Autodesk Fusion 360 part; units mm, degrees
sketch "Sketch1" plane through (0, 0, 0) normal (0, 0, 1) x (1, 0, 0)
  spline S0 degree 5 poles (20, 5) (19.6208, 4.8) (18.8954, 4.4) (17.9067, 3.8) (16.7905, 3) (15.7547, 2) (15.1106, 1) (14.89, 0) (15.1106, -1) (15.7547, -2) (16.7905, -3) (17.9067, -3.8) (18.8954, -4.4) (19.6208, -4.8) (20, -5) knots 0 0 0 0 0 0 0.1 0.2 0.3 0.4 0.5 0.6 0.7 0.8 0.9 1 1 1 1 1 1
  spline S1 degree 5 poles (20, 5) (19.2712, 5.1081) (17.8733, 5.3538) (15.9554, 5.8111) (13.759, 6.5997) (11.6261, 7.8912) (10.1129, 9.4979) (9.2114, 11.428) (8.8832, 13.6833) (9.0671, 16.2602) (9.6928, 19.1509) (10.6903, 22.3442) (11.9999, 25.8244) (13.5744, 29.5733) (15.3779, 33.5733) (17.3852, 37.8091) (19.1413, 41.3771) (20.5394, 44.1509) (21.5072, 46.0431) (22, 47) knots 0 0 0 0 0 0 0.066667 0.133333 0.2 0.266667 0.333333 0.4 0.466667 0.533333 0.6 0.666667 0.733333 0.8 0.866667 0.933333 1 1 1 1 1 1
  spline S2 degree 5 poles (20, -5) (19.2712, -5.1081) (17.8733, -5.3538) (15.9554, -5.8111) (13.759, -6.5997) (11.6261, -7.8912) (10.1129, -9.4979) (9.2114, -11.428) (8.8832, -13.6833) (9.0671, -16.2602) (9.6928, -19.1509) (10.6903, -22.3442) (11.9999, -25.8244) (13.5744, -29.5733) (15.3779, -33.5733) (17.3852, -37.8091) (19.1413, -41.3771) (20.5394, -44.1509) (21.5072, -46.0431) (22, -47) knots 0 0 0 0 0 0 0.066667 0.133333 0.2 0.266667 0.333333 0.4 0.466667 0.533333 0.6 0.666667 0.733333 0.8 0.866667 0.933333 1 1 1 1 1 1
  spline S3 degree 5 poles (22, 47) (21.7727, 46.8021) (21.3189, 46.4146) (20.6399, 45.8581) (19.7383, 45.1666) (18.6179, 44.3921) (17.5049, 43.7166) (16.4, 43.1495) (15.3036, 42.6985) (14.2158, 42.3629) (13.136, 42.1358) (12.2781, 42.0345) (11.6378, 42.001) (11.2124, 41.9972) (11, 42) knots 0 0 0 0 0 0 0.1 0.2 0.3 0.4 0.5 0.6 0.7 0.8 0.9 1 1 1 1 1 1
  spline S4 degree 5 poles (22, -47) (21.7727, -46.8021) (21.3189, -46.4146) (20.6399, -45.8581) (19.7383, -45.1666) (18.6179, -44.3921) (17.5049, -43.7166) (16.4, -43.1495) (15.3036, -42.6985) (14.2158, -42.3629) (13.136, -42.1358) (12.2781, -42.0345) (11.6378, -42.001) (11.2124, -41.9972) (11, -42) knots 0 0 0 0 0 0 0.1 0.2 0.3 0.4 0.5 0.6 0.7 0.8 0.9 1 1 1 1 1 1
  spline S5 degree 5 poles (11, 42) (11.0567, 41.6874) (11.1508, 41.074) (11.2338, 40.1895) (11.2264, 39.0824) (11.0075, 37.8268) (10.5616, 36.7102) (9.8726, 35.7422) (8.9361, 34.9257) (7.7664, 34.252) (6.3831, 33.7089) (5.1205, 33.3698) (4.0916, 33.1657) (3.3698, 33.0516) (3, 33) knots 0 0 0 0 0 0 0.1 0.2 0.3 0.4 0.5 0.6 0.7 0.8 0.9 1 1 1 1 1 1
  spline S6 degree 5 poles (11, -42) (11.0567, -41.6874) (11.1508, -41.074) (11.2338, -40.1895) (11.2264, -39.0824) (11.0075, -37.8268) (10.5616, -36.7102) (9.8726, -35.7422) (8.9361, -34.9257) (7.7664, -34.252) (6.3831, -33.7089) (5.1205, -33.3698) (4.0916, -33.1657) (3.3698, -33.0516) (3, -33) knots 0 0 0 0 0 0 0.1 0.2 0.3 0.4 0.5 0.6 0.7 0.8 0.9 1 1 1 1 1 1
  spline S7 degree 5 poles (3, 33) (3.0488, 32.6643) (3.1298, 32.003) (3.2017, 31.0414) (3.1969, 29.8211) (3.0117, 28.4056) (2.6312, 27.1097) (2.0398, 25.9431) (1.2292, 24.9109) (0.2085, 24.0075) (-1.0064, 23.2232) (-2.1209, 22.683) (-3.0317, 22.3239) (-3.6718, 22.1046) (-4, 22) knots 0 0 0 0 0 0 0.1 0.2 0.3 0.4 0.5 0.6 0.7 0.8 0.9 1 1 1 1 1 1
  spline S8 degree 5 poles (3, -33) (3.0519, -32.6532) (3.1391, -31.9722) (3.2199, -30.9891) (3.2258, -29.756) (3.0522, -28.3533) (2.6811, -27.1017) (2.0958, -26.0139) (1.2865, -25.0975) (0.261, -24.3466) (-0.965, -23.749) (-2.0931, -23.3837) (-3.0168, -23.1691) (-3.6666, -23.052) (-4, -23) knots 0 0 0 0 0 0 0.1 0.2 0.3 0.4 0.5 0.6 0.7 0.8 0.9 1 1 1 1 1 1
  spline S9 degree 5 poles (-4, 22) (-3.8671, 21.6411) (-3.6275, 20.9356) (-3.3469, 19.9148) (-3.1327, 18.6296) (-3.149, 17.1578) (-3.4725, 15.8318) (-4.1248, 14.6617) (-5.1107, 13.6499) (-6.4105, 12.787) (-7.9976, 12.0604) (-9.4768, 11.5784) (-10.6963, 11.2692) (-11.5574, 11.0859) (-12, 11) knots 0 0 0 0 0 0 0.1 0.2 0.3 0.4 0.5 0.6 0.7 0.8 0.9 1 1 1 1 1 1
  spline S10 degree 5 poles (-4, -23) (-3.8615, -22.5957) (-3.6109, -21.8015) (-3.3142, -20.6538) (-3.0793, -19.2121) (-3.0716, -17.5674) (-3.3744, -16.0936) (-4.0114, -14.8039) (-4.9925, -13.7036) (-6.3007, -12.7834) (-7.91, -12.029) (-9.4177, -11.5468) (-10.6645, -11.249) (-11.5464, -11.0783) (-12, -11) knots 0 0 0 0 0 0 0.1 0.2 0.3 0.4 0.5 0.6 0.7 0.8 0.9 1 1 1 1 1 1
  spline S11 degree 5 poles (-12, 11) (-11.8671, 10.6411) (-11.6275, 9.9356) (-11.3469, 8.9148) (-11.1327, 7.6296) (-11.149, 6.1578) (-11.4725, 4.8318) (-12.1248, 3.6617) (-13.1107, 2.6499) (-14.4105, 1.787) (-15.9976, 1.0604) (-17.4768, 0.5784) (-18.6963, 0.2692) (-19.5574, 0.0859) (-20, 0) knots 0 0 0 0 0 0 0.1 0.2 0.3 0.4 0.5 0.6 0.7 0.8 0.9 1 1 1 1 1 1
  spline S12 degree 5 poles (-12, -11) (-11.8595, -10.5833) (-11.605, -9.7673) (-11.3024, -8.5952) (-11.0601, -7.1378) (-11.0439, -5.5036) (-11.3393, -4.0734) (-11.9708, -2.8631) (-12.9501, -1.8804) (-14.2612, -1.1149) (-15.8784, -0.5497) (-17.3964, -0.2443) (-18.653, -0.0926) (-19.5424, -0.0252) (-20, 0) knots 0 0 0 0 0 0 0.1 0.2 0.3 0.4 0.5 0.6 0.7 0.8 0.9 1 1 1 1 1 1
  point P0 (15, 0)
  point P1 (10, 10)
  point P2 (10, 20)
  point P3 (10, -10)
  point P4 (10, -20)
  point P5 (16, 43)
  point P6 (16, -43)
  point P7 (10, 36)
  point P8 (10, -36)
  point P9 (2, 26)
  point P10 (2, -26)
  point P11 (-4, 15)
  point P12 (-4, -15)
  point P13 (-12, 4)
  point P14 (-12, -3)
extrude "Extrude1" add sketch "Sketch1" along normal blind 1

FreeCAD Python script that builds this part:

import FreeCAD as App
import Part
import Sketcher
from FreeCAD import Vector

doc = App.newDocument("Part")
body = doc.addObject("PartDesign::Body", "Body")

# Sketch on XY plane
sketch1 = doc.addObject("Sketcher::SketchObject", "Sketch")
body.addObject(sketch1)
sketch1.AttachmentSupport = (doc.XY_Plane, [""])
sketch1.MapMode = "FlatFace"
sketch1.addGeometry([
    Part.BSplineCurve([Vector(20, 5, 0), Vector(19.6208, 4.8, 0), Vector(18.8954, 4.4, 0), Vector(17.9067, 3.8, 0), Vector(16.7905, 3, 0), Vector(15.7547, 2, 0), Vector(15.1106, 1, 0), Vector(14.89, 0, 0), Vector(15.1106, -1, 0), Vector(15.7547, -2, 0), Vector(16.7905, -3, 0), Vector(17.9067, -3.8, 0), Vector(18.8954, -4.4, 0), Vector(19.6208, -4.8, 0), Vector(20, -5, 0)], [6, 1, 1, 1, 1, 1, 1, 1, 1, 1, 6], [0, 0.1, 0.2, 0.3, 0.4, 0.5, 0.6, 0.7, 0.8, 0.9, 1], False, 5, [1, 1, 1, 1, 1, 1, 1, 1, 1, 1, 1, 1, 1, 1, 1], False),  # 0
    Part.BSplineCurve([Vector(20, 5, 0), Vector(19.2712, 5.1081, 0), Vector(17.8733, 5.3538, 0), Vector(15.9554, 5.8111, 0), Vector(13.759, 6.5997, 0), Vector(11.6261, 7.8912, 0), Vector(10.1129, 9.4979, 0), Vector(9.2114, 11.428, 0), Vector(8.8832, 13.6833, 0), Vector(9.0671, 16.2602, 0), Vector(9.6928, 19.1509, 0), Vector(10.6903, 22.3442, 0), Vector(11.9999, 25.8244, 0), Vector(13.5744, 29.5733, 0), Vector(15.3779, 33.5733, 0), Vector(17.3852, 37.8091, 0), Vector(19.1413, 41.3771, 0), Vector(20.5394, 44.1509, 0), Vector(21.5072, 46.0431, 0), Vector(22, 47, 0)], [6, 1, 1, 1, 1, 1, 1, 1, 1, 1, 1, 1, 1, 1, 1, 6], [0, 0.066667, 0.133333, 0.2, 0.266667, 0.333333, 0.4, 0.466667, 0.533333, 0.6, 0.666667, 0.733333, 0.8, 0.866667, 0.933333, 1], False, 5, [1, 1, 1, 1, 1, 1, 1, 1, 1, 1, 1, 1, 1, 1, 1, 1, 1, 1, 1, 1], False),  # 1
    Part.BSplineCurve([Vector(22, 47, 0), Vector(21.7727, 46.8021, 0), Vector(21.3189, 46.4146, 0), Vector(20.6399, 45.8581, 0), Vector(19.7383, 45.1666, 0), Vector(18.6179, 44.3921, 0), Vector(17.5049, 43.7166, 0), Vector(16.4, 43.1495, 0), Vector(15.3036, 42.6985, 0), Vector(14.2158, 42.3629, 0), Vector(13.136, 42.1358, 0), Vector(12.2781, 42.0345, 0), Vector(11.6378, 42.001, 0), Vector(11.2124, 41.9972, 0), Vector(11, 42, 0)], [6, 1, 1, 1, 1, 1, 1, 1, 1, 1, 6], [0, 0.1, 0.2, 0.3, 0.4, 0.5, 0.6, 0.7, 0.8, 0.9, 1], False, 5, [1, 1, 1, 1, 1, 1, 1, 1, 1, 1, 1, 1, 1, 1, 1], False),  # 2
    Part.BSplineCurve([Vector(11, 42, 0), Vector(11.0567, 41.6874, 0), Vector(11.1508, 41.074, 0), Vector(11.2338, 40.1895, 0), Vector(11.2264, 39.0824, 0), Vector(11.0075, 37.8268, 0), Vector(10.5616, 36.7102, 0), Vector(9.8726, 35.7422, 0), Vector(8.9361, 34.9257, 0), Vector(7.7664, 34.252, 0), Vector(6.3831, 33.7089, 0), Vector(5.1205, 33.3698, 0), Vector(4.0916, 33.1657, 0), Vector(3.3698, 33.0516, 0), Vector(3, 33, 0)], [6, 1, 1, 1, 1, 1, 1, 1, 1, 1, 6], [0, 0.1, 0.2, 0.3, 0.4, 0.5, 0.6, 0.7, 0.8, 0.9, 1], False, 5, [1, 1, 1, 1, 1, 1, 1, 1, 1, 1, 1, 1, 1, 1, 1], False),  # 3
    Part.BSplineCurve([Vector(3, 33, 0), Vector(3.0488, 32.6643, 0), Vector(3.1298, 32.003, 0), Vector(3.2017, 31.0414, 0), Vector(3.1969, 29.8211, 0), Vector(3.0117, 28.4056, 0), Vector(2.6312, 27.1097, 0), Vector(2.0398, 25.9431, 0), Vector(1.2292, 24.9109, 0), Vector(0.2085, 24.0075, 0), Vector(-1.0064, 23.2232, 0), Vector(-2.1209, 22.683, 0), Vector(-3.0317, 22.3239, 0), Vector(-3.6718, 22.1046, 0), Vector(-4, 22, 0)], [6, 1, 1, 1, 1, 1, 1, 1, 1, 1, 6], [0, 0.1, 0.2, 0.3, 0.4, 0.5, 0.6, 0.7, 0.8, 0.9, 1], False, 5, [1, 1, 1, 1, 1, 1, 1, 1, 1, 1, 1, 1, 1, 1, 1], False),  # 4
    Part.BSplineCurve([Vector(-4, 22, 0), Vector(-3.8671, 21.6411, 0), Vector(-3.6275, 20.9356, 0), Vector(-3.3469, 19.9148, 0), Vector(-3.1327, 18.6296, 0), Vector(-3.149, 17.1578, 0), Vector(-3.4725, 15.8318, 0), Vector(-4.1248, 14.6617, 0), Vector(-5.1107, 13.6499, 0), Vector(-6.4105, 12.787, 0), Vector(-7.9976, 12.0604, 0), Vector(-9.4768, 11.5784, 0), Vector(-10.6963, 11.2692, 0), Vector(-11.5574, 11.0859, 0), Vector(-12, 11, 0)], [6, 1, 1, 1, 1, 1, 1, 1, 1, 1, 6], [0, 0.1, 0.2, 0.3, 0.4, 0.5, 0.6, 0.7, 0.8, 0.9, 1], False, 5, [1, 1, 1, 1, 1, 1, 1, 1, 1, 1, 1, 1, 1, 1, 1], False),  # 5
    Part.BSplineCurve([Vector(-12, 11, 0), Vector(-11.8671, 10.6411, 0), Vector(-11.6275, 9.9356, 0), Vector(-11.3469, 8.9148, 0), Vector(-11.1327, 7.6296, 0), Vector(-11.149, 6.1578, 0), Vector(-11.4725, 4.8318, 0), Vector(-12.1248, 3.6617, 0), Vector(-13.1107, 2.6499, 0), Vector(-14.4105, 1.787, 0), Vector(-15.9976, 1.0604, 0), Vector(-17.4768, 0.5784, 0), Vector(-18.6963, 0.2692, 0), Vector(-19.5574, 0.0859, 0), Vector(-20, 0, 0)], [6, 1, 1, 1, 1, 1, 1, 1, 1, 1, 6], [0, 0.1, 0.2, 0.3, 0.4, 0.5, 0.6, 0.7, 0.8, 0.9, 1], False, 5, [1, 1, 1, 1, 1, 1, 1, 1, 1, 1, 1, 1, 1, 1, 1], False),  # 6
    Part.BSplineCurve([Vector(-12, -11, 0), Vector(-11.8595, -10.5833, 0), Vector(-11.605, -9.7673, 0), Vector(-11.3024, -8.5952, 0), Vector(-11.0601, -7.1378, 0), Vector(-11.0439, -5.5036, 0), Vector(-11.3393, -4.0734, 0), Vector(-11.9708, -2.8631, 0), Vector(-12.9501, -1.8804, 0), Vector(-14.2612, -1.1149, 0), Vector(-15.8784, -0.5497, 0), Vector(-17.3964, -0.2443, 0), Vector(-18.653, -0.0926, 0), Vector(-19.5424, -0.0252, 0), Vector(-20, 0, 0)], [6, 1, 1, 1, 1, 1, 1, 1, 1, 1, 6], [0, 0.1, 0.2, 0.3, 0.4, 0.5, 0.6, 0.7, 0.8, 0.9, 1], False, 5, [1, 1, 1, 1, 1, 1, 1, 1, 1, 1, 1, 1, 1, 1, 1], False),  # 7
    Part.BSplineCurve([Vector(-4, -23, 0), Vector(-3.8615, -22.5957, 0), Vector(-3.6109, -21.8015, 0), Vector(-3.3142, -20.6538, 0), Vector(-3.0793, -19.2121, 0), Vector(-3.0716, -17.5674, 0), Vector(-3.3744, -16.0936, 0), Vector(-4.0114, -14.8039, 0), Vector(-4.9925, -13.7036, 0), Vector(-6.3007, -12.7834, 0), Vector(-7.91, -12.029, 0), Vector(-9.4177, -11.5468, 0), Vector(-10.6645, -11.249, 0), Vector(-11.5464, -11.0783, 0), Vector(-12, -11, 0)], [6, 1, 1, 1, 1, 1, 1, 1, 1, 1, 6], [0, 0.1, 0.2, 0.3, 0.4, 0.5, 0.6, 0.7, 0.8, 0.9, 1], False, 5, [1, 1, 1, 1, 1, 1, 1, 1, 1, 1, 1, 1, 1, 1, 1], False),  # 8
    Part.BSplineCurve([Vector(3, -33, 0), Vector(3.0519, -32.6532, 0), Vector(3.1391, -31.9722, 0), Vector(3.2199, -30.9891, 0), Vector(3.2258, -29.756, 0), Vector(3.0522, -28.3533, 0), Vector(2.6811, -27.1017, 0), Vector(2.0958, -26.0139, 0), Vector(1.2865, -25.0975, 0), Vector(0.261, -24.3466, 0), Vector(-0.965, -23.749, 0), Vector(-2.0931, -23.3837, 0), Vector(-3.0168, -23.1691, 0), Vector(-3.6666, -23.052, 0), Vector(-4, -23, 0)], [6, 1, 1, 1, 1, 1, 1, 1, 1, 1, 6], [0, 0.1, 0.2, 0.3, 0.4, 0.5, 0.6, 0.7, 0.8, 0.9, 1], False, 5, [1, 1, 1, 1, 1, 1, 1, 1, 1, 1, 1, 1, 1, 1, 1], False),  # 9
    Part.BSplineCurve([Vector(11, -42, 0), Vector(11.0567, -41.6874, 0), Vector(11.1508, -41.074, 0), Vector(11.2338, -40.1895, 0), Vector(11.2264, -39.0824, 0), Vector(11.0075, -37.8268, 0), Vector(10.5616, -36.7102, 0), Vector(9.8726, -35.7422, 0), Vector(8.9361, -34.9257, 0), Vector(7.7664, -34.252, 0), Vector(6.3831, -33.7089, 0), Vector(5.1205, -33.3698, 0), Vector(4.0916, -33.1657, 0), Vector(3.3698, -33.0516, 0), Vector(3, -33, 0)], [6, 1, 1, 1, 1, 1, 1, 1, 1, 1, 6], [0, 0.1, 0.2, 0.3, 0.4, 0.5, 0.6, 0.7, 0.8, 0.9, 1], False, 5, [1, 1, 1, 1, 1, 1, 1, 1, 1, 1, 1, 1, 1, 1, 1], False),  # 10
    Part.BSplineCurve([Vector(22, -47, 0), Vector(21.7727, -46.8021, 0), Vector(21.3189, -46.4146, 0), Vector(20.6399, -45.8581, 0), Vector(19.7383, -45.1666, 0), Vector(18.6179, -44.3921, 0), Vector(17.5049, -43.7166, 0), Vector(16.4, -43.1495, 0), Vector(15.3036, -42.6985, 0), Vector(14.2158, -42.3629, 0), Vector(13.136, -42.1358, 0), Vector(12.2781, -42.0345, 0), Vector(11.6378, -42.001, 0), Vector(11.2124, -41.9972, 0), Vector(11, -42, 0)], [6, 1, 1, 1, 1, 1, 1, 1, 1, 1, 6], [0, 0.1, 0.2, 0.3, 0.4, 0.5, 0.6, 0.7, 0.8, 0.9, 1], False, 5, [1, 1, 1, 1, 1, 1, 1, 1, 1, 1, 1, 1, 1, 1, 1], False),  # 11
    Part.BSplineCurve([Vector(20, -5, 0), Vector(19.2712, -5.1081, 0), Vector(17.8733, -5.3538, 0), Vector(15.9554, -5.8111, 0), Vector(13.759, -6.5997, 0), Vector(11.6261, -7.8912, 0), Vector(10.1129, -9.4979, 0), Vector(9.2114, -11.428, 0), Vector(8.8832, -13.6833, 0), Vector(9.0671, -16.2602, 0), Vector(9.6928, -19.1509, 0), Vector(10.6903, -22.3442, 0), Vector(11.9999, -25.8244, 0), Vector(13.5744, -29.5733, 0), Vector(15.3779, -33.5733, 0), Vector(17.3852, -37.8091, 0), Vector(19.1413, -41.3771, 0), Vector(20.5394, -44.1509, 0), Vector(21.5072, -46.0431, 0), Vector(22, -47, 0)], [6, 1, 1, 1, 1, 1, 1, 1, 1, 1, 1, 1, 1, 1, 1, 6], [0, 0.066667, 0.133333, 0.2, 0.266667, 0.333333, 0.4, 0.466667, 0.533333, 0.6, 0.666667, 0.733333, 0.8, 0.866667, 0.933333, 1], False, 5, [1, 1, 1, 1, 1, 1, 1, 1, 1, 1, 1, 1, 1, 1, 1, 1, 1, 1, 1, 1], False),  # 12
], False)
sketch1.addConstraint([
    Sketcher.Constraint("Block", 0),
    Sketcher.Constraint("Block", 1),
    Sketcher.Constraint("Block", 2),
    Sketcher.Constraint("Block", 3),
    Sketcher.Constraint("Block", 4),
    Sketcher.Constraint("Block", 5),
    Sketcher.Constraint("Block", 6),
    Sketcher.Constraint("Block", 7),
    Sketcher.Constraint("Block", 8),
    Sketcher.Constraint("Block", 9),
    Sketcher.Constraint("Block", 10),
    Sketcher.Constraint("Block", 11),
    Sketcher.Constraint("Block", 12),
])
pad1 = doc.addObject("PartDesign::Pad", "Pad")
body.addObject(pad1)
pad1.Profile = sketch1
pad1.Length = 1

doc.recompute()
